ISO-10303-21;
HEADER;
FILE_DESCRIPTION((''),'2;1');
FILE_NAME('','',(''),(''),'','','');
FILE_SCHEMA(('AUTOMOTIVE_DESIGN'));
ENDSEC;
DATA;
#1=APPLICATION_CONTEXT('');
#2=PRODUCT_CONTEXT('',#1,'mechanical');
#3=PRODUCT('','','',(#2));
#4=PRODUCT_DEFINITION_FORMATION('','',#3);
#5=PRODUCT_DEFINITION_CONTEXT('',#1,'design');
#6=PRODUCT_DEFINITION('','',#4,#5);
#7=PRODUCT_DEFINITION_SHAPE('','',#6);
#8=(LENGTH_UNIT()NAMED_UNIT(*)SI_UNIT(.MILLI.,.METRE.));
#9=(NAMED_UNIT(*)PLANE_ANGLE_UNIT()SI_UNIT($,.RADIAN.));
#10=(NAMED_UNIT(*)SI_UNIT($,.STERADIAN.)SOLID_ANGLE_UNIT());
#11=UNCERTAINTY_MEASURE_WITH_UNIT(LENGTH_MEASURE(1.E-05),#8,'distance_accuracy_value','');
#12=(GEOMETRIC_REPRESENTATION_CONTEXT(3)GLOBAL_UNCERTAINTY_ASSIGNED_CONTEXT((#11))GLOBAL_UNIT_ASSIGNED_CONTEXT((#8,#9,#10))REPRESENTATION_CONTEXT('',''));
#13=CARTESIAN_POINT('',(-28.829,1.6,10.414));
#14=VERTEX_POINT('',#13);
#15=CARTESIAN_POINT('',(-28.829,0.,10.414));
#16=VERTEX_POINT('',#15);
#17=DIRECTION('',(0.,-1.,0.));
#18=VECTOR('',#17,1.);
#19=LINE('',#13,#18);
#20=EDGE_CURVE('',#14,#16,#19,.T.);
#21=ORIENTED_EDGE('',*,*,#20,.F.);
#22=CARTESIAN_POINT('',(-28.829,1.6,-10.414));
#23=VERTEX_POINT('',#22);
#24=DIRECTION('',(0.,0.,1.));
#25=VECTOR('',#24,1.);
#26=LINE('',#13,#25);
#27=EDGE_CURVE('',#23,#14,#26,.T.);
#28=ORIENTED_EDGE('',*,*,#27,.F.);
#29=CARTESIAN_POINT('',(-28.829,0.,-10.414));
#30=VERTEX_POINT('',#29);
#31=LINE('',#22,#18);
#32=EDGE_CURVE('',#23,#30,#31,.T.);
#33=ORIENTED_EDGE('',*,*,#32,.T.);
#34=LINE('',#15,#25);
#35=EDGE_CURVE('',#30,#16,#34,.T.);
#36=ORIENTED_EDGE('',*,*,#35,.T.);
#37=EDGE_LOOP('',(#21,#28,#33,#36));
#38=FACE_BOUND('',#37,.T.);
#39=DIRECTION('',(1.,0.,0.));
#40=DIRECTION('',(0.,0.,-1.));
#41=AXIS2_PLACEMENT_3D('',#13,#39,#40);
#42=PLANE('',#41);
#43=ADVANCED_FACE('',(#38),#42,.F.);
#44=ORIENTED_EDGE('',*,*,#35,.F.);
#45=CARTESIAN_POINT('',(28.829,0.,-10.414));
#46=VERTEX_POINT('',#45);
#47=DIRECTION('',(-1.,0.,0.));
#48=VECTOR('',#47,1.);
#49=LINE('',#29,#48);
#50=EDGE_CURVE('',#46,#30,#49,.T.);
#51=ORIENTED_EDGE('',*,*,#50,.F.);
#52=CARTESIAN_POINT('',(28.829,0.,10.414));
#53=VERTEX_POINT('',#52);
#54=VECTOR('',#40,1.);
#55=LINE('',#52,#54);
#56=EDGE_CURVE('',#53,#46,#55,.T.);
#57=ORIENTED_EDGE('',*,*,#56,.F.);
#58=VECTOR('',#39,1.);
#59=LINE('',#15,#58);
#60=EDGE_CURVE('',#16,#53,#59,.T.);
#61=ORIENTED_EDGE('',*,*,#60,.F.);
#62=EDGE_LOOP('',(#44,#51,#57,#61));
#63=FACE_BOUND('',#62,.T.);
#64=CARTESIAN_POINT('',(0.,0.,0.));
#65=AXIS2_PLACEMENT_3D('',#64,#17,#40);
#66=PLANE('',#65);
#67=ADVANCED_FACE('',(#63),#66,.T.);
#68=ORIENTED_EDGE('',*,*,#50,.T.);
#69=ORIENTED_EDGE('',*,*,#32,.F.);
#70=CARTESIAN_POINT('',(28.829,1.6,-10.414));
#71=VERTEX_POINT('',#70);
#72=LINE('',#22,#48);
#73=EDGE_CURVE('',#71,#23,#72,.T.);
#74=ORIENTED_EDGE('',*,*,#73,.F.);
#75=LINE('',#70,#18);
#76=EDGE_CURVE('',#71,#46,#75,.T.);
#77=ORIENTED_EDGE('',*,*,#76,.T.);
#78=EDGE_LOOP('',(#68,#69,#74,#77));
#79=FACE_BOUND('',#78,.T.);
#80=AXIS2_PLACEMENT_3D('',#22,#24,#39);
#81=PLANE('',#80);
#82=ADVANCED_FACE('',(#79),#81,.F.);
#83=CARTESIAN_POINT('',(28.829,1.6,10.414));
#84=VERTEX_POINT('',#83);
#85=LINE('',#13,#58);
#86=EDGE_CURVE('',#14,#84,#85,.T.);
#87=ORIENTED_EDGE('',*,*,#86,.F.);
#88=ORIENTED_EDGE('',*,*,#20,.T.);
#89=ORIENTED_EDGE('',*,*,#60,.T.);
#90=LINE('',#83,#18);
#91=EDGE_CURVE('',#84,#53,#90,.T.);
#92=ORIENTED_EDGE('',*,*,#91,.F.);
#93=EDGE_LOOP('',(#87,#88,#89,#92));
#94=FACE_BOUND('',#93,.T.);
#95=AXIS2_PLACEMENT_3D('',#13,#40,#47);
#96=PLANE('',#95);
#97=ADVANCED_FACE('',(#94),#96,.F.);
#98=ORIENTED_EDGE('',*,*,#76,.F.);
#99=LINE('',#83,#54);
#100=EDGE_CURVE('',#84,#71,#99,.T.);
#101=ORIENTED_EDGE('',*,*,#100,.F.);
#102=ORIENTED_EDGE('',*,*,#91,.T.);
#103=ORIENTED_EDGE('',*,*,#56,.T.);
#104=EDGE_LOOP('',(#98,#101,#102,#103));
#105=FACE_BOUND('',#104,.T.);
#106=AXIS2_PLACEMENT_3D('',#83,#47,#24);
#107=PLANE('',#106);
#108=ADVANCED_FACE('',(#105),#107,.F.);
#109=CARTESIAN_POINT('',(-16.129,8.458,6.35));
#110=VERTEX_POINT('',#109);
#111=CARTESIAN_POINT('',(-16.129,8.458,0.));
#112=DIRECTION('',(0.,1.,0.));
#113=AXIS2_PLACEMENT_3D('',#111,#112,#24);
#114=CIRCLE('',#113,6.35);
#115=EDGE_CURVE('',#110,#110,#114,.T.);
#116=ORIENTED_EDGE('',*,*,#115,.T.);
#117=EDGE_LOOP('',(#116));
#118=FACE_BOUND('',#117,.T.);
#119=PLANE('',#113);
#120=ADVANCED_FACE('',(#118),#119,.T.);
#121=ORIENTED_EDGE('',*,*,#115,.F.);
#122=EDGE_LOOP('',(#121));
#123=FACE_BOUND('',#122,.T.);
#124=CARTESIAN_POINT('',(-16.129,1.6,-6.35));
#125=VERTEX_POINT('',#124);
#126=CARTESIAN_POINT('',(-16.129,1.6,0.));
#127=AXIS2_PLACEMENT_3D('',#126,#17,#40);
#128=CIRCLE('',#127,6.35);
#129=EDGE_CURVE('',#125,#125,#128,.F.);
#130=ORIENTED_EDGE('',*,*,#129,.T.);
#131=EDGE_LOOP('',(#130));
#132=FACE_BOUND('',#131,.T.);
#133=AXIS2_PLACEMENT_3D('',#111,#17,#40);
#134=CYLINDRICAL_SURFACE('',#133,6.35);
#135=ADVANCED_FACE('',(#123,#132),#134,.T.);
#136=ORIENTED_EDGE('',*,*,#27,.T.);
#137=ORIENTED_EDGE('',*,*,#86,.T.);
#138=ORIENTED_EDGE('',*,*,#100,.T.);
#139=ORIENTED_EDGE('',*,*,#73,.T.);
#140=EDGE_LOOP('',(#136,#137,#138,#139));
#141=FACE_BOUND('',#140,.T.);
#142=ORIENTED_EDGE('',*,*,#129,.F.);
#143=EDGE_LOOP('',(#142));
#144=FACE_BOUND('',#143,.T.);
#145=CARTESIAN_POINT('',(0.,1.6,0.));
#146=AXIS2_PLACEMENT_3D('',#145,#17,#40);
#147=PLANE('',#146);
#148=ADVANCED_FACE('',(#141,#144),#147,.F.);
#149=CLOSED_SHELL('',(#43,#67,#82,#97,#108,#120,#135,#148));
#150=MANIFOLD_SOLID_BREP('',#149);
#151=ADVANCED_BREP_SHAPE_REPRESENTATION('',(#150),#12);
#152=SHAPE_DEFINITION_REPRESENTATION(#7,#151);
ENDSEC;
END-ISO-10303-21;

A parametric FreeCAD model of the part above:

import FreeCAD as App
import Part
import Sketcher
Q = App.Units.Quantity


def add_polygon(sketch, points):
    """Adds a closed chain of lines whose ends are joined by coincident constraints."""
    first, n = sketch.GeometryCount, len(points)
    for a, b in zip(points, points[1:] + points[:1]):
        sketch.addGeometry(Part.LineSegment(App.Vector(*a, 0), App.Vector(*b, 0)), False)
    for i in range(n):
        sketch.addConstraint(Sketcher.Constraint("Coincident", first + i, 2, first + (i + 1) % n, 1))

doc = App.newDocument("Part")
params = doc.addObject("Spreadsheet::Sheet", "Params")
for row, (alias, value) in enumerate([
    ("sketch1_width", "2.27 in"),
    ("sketch1_height", "0.82 in"),
    ("pad1_length", "1.6 mm"),
    ("sketch2_diameter", "0.5 in"),
    ("pad2_length", "0.27 in"),
], start=1):
    params.set(f"A{row}", alias)
    params.set(f"B{row}", "=" + value)
    params.setAlias(f"B{row}", alias)

body = doc.addObject("PartDesign::Body", "Body")

# Sketch on XZ plane
sketch1 = doc.addObject("Sketcher::SketchObject", "Sketch")
body.addObject(sketch1)
sketch1.AttachmentSupport = (doc.XZ_Plane, [""])
sketch1.MapMode = "FlatFace"
add_polygon(sketch1, [(-29, -10), (-29, 10), (29, 10), (29, -10)])  # lines 0-3
sketch1.addConstraint([
    Sketcher.Constraint("Vertical", 0),
    Sketcher.Constraint("Horizontal", 1),
    Sketcher.Constraint("Vertical", 2),
    Sketcher.Constraint("Horizontal", 3),
    Sketcher.Constraint("Symmetric", 0, 2, 2, 2, -1, 1),
    Sketcher.Constraint("DistanceX", 1, 1, 1, 2, Q("2.27 in")),
    Sketcher.Constraint("DistanceY", 0, 1, 0, 2, Q("0.82 in")),
])
sketch1.setExpression("Constraints[9]", "Params.sketch1_width")
sketch1.setExpression("Constraints[10]", "Params.sketch1_height")
pad1 = doc.addObject("PartDesign::Pad", "Pad")
body.addObject(pad1)
pad1.Profile = sketch1
pad1.setExpression("Length", "Params.pad1_length")
pad1.Reversed = True

# Sketch on XZ plane
sketch2 = doc.addObject("Sketcher::SketchObject", "Sketch001")
body.addObject(sketch2)
sketch2.AttachmentSupport = (doc.XZ_Plane, [""])
sketch2.MapMode = "FlatFace"
sketch2.AttachmentOffset = App.Placement(App.Vector(0, 0, -1.6), App.Rotation())
sketch2.addGeometry(Part.Circle(App.Vector(-16, 0, 0), App.Vector(0, 0, 1), 6), False)
sketch2.addConstraint([
    Sketcher.Constraint("PointOnObject", 0, 3, -1),
    Sketcher.Constraint("Diameter", 0, Q("0.5 in")),
    Sketcher.Constraint("DistanceX", 0, 3, -1, 1, Q("0.635 in")),
])
sketch2.setExpression("Constraints[1]", "Params.sketch2_diameter")
pad2 = doc.addObject("PartDesign::Pad", "Pad001")
body.addObject(pad2)
pad2.Profile = sketch2
pad2.setExpression("Length", "Params.pad2_length")
pad2.Reversed = True

doc.recompute()
